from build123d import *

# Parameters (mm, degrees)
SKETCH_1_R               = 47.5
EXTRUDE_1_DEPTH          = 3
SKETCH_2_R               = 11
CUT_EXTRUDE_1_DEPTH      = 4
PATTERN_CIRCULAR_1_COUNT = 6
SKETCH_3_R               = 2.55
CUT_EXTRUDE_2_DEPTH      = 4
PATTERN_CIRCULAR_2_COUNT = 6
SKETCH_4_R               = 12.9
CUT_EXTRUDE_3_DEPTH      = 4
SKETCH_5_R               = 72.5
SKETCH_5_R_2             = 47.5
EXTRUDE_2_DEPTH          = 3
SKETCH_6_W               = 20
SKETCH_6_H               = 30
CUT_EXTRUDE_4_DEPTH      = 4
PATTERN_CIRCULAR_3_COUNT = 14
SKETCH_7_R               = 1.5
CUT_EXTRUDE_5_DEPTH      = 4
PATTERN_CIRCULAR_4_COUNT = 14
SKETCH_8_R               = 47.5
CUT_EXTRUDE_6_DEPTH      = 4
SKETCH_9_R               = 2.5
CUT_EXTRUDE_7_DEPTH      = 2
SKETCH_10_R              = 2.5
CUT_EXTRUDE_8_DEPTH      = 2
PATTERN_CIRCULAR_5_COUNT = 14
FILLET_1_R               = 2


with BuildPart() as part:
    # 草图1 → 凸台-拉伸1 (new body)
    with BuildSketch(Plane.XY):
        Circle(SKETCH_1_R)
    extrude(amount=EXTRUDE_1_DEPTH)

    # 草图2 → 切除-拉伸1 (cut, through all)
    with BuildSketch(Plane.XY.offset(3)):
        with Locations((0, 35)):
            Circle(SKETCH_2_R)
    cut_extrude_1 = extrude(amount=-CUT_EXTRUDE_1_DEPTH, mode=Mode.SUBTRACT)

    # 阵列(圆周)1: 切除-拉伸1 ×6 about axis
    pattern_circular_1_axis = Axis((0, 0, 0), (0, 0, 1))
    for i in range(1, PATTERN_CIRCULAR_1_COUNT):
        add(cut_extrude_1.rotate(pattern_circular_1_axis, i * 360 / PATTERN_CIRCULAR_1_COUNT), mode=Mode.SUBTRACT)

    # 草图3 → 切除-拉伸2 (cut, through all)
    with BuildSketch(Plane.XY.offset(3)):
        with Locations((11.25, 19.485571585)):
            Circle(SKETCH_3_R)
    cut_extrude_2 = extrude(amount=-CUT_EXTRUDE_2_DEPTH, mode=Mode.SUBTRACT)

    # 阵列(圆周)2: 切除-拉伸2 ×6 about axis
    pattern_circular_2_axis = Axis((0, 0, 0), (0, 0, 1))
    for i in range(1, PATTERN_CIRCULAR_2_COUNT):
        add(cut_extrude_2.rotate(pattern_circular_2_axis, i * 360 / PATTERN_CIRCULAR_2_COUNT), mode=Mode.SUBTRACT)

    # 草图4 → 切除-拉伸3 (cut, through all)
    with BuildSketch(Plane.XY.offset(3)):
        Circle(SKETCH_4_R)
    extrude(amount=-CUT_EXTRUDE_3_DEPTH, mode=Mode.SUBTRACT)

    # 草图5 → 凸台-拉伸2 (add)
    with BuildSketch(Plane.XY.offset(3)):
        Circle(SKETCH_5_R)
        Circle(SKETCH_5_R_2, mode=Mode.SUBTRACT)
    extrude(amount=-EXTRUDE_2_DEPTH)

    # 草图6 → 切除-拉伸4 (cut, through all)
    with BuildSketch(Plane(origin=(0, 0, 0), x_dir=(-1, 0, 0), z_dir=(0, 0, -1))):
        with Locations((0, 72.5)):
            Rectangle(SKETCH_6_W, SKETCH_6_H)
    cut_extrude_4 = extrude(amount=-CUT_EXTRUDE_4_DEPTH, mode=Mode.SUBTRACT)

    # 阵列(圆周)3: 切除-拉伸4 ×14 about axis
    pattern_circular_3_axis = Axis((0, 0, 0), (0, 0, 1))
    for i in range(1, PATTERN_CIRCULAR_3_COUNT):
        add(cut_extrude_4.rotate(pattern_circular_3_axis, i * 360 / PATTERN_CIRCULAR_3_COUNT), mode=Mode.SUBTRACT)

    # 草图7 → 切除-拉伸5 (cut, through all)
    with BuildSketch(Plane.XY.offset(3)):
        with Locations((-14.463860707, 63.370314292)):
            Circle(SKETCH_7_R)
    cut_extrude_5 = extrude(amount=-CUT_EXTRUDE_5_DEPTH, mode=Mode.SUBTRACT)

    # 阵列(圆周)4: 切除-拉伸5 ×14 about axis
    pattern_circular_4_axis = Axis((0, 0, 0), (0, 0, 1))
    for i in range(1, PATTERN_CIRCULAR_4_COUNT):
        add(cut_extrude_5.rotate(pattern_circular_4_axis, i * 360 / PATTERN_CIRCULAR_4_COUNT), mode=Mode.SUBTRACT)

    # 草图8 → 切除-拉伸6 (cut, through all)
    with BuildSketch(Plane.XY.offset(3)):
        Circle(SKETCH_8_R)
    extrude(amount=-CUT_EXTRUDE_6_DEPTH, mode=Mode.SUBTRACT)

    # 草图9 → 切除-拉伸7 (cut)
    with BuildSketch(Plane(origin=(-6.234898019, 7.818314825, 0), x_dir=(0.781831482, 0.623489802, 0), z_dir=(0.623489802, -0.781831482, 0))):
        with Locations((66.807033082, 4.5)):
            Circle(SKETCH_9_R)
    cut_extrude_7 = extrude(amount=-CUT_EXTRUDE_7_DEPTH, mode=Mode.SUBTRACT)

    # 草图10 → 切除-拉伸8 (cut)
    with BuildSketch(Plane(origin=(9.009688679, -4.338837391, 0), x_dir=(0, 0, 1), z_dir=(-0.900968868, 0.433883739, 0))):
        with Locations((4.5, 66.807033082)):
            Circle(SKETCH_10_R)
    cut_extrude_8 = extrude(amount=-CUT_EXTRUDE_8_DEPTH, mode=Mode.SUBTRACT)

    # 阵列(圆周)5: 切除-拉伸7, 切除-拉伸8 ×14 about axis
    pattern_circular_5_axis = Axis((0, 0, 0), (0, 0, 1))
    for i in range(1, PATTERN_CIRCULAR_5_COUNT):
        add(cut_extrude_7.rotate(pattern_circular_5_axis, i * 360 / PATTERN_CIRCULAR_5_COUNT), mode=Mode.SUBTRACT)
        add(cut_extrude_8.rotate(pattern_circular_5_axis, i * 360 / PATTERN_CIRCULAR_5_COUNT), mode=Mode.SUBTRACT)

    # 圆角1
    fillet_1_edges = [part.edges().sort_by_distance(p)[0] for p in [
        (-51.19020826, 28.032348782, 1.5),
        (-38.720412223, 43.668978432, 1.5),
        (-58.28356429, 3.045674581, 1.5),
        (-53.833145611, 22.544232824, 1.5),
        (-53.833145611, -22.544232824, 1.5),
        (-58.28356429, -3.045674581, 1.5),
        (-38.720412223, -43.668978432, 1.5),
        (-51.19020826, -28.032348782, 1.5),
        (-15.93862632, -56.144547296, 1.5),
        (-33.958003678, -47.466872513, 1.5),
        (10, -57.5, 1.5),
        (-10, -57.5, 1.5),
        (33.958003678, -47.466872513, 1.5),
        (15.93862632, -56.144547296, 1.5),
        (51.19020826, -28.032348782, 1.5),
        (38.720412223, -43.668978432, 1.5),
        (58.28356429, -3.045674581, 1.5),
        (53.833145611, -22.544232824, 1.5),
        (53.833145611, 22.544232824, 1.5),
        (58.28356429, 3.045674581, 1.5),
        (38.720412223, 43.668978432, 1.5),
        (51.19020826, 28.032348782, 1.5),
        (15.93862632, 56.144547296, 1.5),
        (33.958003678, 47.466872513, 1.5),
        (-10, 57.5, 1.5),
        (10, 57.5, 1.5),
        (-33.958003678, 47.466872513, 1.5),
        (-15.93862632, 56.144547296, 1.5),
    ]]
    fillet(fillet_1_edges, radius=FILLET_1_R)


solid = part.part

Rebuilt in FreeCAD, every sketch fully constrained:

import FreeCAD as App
import Part
import Sketcher
Q = App.Units.Quantity


def edges_at(feature, points):
    """Names of the edges that pass closest to the given points."""
    edges = feature.Shape.Edges
    near = lambda p: min(range(len(edges)), key=lambda i: edges[i].distToShape(Part.Vertex(*p))[0])
    return sorted({f"Edge{near(p) + 1}" for p in points})

doc = App.newDocument("Part")
body = doc.addObject("PartDesign::Body", "Body")

sketch1 = body.newObject("Sketcher::SketchObject", "Sketch")
sketch1.AttachmentSupport = (doc.getObject("XY_Plane"), [""])
sketch1.MapMode = "FlatFace"
sketch1.addGeometry(Part.Circle(App.Vector(0, 0, 0), App.Vector(0, 0, 1), 48), False)
sketch1.addConstraint(Sketcher.Constraint("Coincident", 0, 3, -1, 1))
sketch1.addConstraint(Sketcher.Constraint("Diameter", 0, Q("95 mm")))
pad1 = body.newObject("PartDesign::Pad", "Pad")
pad1.Profile = sketch1
pad1.Length = 3

sketch2 = body.newObject("Sketcher::SketchObject", "Sketch001")
sketch2.AttachmentSupport = (doc.getObject("XY_Plane"), [""])
sketch2.MapMode = "FlatFace"
sketch2.AttachmentOffset = App.Placement(App.Vector(0, 0, 3), App.Rotation())
sketch2.addGeometry(Part.Circle(App.Vector(0, 35, 0), App.Vector(0, 0, 1), 11), False)
sketch2.addConstraint(Sketcher.Constraint("PointOnObject", 0, 3, -2))
sketch2.addConstraint(Sketcher.Constraint("Diameter", 0, Q("22 mm")))
sketch2.addConstraint(Sketcher.Constraint("DistanceY", -1, 1, 0, 3, Q("35 mm")))
pocket1 = body.newObject("PartDesign::Pocket", "Pocket")
pocket1.Profile = sketch2
pocket1.Type = "ThroughAll"
doc.recompute()

polarpattern = body.newObject("PartDesign::PolarPattern", "PolarPattern")
polarpattern.Originals = [pocket1]
polarpattern.Axis = (doc.getObject("Z_Axis"), [""])
polarpattern.Angle = 360
polarpattern.Occurrences = 6
body.Tip = polarpattern

sketch3 = body.newObject("Sketcher::SketchObject", "Sketch002")
sketch3.AttachmentSupport = (doc.getObject("XY_Plane"), [""])
sketch3.MapMode = "FlatFace"
sketch3.AttachmentOffset = App.Placement(App.Vector(0, 0, 3), App.Rotation())
sketch3.addGeometry(Part.Circle(App.Vector(11.2, 19.5, 0), App.Vector(0, 0, 1), 2.5), False)
sketch3.addConstraint(Sketcher.Constraint("Diameter", 0, Q("5.1 mm")))
sketch3.addConstraint(Sketcher.Constraint("DistanceX", -1, 1, 0, 3, Q("11.25 mm")))
sketch3.addConstraint(Sketcher.Constraint("DistanceY", -1, 1, 0, 3, Q("19.485572 mm")))
pocket2 = body.newObject("PartDesign::Pocket", "Pocket001")
pocket2.Profile = sketch3
pocket2.Type = "ThroughAll"
doc.recompute()

polarpattern2 = body.newObject("PartDesign::PolarPattern", "PolarPattern001")
polarpattern2.Originals = [pocket2]
polarpattern2.Axis = (doc.getObject("Z_Axis"), [""])
polarpattern2.Angle = 360
polarpattern2.Occurrences = 6
body.Tip = polarpattern2

sketch4 = body.newObject("Sketcher::SketchObject", "Sketch003")
sketch4.AttachmentSupport = (doc.getObject("XY_Plane"), [""])
sketch4.MapMode = "FlatFace"
sketch4.AttachmentOffset = App.Placement(App.Vector(0, 0, 3), App.Rotation())
sketch4.addGeometry(Part.Circle(App.Vector(0, 0, 0), App.Vector(0, 0, 1), 13), False)
sketch4.addConstraint(Sketcher.Constraint("Coincident", 0, 3, -1, 1))
sketch4.addConstraint(Sketcher.Constraint("Diameter", 0, Q("25.8 mm")))
pocket3 = body.newObject("PartDesign::Pocket", "Pocket002")
pocket3.Profile = sketch4
pocket3.Type = "ThroughAll"

sketch5 = body.newObject("Sketcher::SketchObject", "Sketch004")
sketch5.AttachmentSupport = (doc.getObject("XY_Plane"), [""])
sketch5.MapMode = "FlatFace"
sketch5.AttachmentOffset = App.Placement(App.Vector(0, 0, 3), App.Rotation())
sketch5.addGeometry(Part.Circle(App.Vector(0, 0, 0), App.Vector(0, 0, 1), 72), False)
sketch5.addGeometry(Part.Circle(App.Vector(0, 0, 0), App.Vector(0, 0, 1), 48), False)
sketch5.addConstraint(Sketcher.Constraint("Coincident", 0, 3, -1, 1))
sketch5.addConstraint(Sketcher.Constraint("Coincident", 1, 3, -1, 1))
sketch5.addConstraint(Sketcher.Constraint("Diameter", 0, Q("145 mm")))
sketch5.addConstraint(Sketcher.Constraint("Diameter", 1, Q("95 mm")))
pad2 = body.newObject("PartDesign::Pad", "Pad001")
pad2.Profile = sketch5
pad2.Length = 3
pad2.Reversed = True

sketch6 = body.newObject("Sketcher::SketchObject", "Sketch005")
sketch6.AttachmentSupport = (doc.getObject("XY_Plane"), [""])
sketch6.MapMode = "FlatFace"
sketch6.addGeometry(Part.LineSegment(App.Vector(10, 88, 0), App.Vector(10, 58, 0)), False)
sketch6.addGeometry(Part.LineSegment(App.Vector(10, 58, 0), App.Vector(-10, 58, 0)), False)
sketch6.addGeometry(Part.LineSegment(App.Vector(-10, 58, 0), App.Vector(-10, 88, 0)), False)
sketch6.addGeometry(Part.LineSegment(App.Vector(-10, 88, 0), App.Vector(10, 88, 0)), False)
sketch6.addConstraint(Sketcher.Constraint("Coincident", 0, 2, 1, 1))
sketch6.addConstraint(Sketcher.Constraint("Coincident", 1, 2, 2, 1))
sketch6.addConstraint(Sketcher.Constraint("Coincident", 2, 2, 3, 1))
sketch6.addConstraint(Sketcher.Constraint("Coincident", 3, 2, 0, 1))
sketch6.addConstraint(Sketcher.Constraint("Vertical", 0))
sketch6.addConstraint(Sketcher.Constraint("Horizontal", 1))
sketch6.addConstraint(Sketcher.Constraint("Vertical", 2))
sketch6.addConstraint(Sketcher.Constraint("Horizontal", 3))
sketch6.addConstraint(Sketcher.Constraint("DistanceX", 1, 2, 1, 1, Q("20 mm")))
sketch6.addConstraint(Sketcher.Constraint("DistanceY", 0, 2, 0, 1, Q("30 mm")))
sketch6.addConstraint(Sketcher.Constraint("DistanceX", -1, 1, 0, 2, Q("10 mm")))
sketch6.addConstraint(Sketcher.Constraint("DistanceY", -1, 1, 0, 2, Q("57.5 mm")))
pocket4 = body.newObject("PartDesign::Pocket", "Pocket003")
pocket4.Profile = sketch6
pocket4.Type = "ThroughAll"
pocket4.Reversed = True
doc.recompute()

polarpattern3 = body.newObject("PartDesign::PolarPattern", "PolarPattern002")
polarpattern3.Originals = [pocket4]
polarpattern3.Axis = (doc.getObject("Z_Axis"), [""])
polarpattern3.Angle = 360
polarpattern3.Occurrences = 14
body.Tip = polarpattern3

sketch7 = body.newObject("Sketcher::SketchObject", "Sketch006")
sketch7.AttachmentSupport = (doc.getObject("XY_Plane"), [""])
sketch7.MapMode = "FlatFace"
sketch7.AttachmentOffset = App.Placement(App.Vector(0, 0, 3), App.Rotation())
sketch7.addGeometry(Part.Circle(App.Vector(-14.5, 63.4, 0), App.Vector(0, 0, 1), 1.5), False)
sketch7.addConstraint(Sketcher.Constraint("Diameter", 0, Q("3 mm")))
sketch7.addConstraint(Sketcher.Constraint("DistanceX", 0, 3, -1, 1, Q("14.463861 mm")))
sketch7.addConstraint(Sketcher.Constraint("DistanceY", -1, 1, 0, 3, Q("63.370314 mm")))
pocket5 = body.newObject("PartDesign::Pocket", "Pocket004")
pocket5.Profile = sketch7
pocket5.Type = "ThroughAll"
doc.recompute()

polarpattern4 = body.newObject("PartDesign::PolarPattern", "PolarPattern003")
polarpattern4.Originals = [pocket5]
polarpattern4.Axis = (doc.getObject("Z_Axis"), [""])
polarpattern4.Angle = 360
polarpattern4.Occurrences = 14
body.Tip = polarpattern4

sketch8 = body.newObject("Sketcher::SketchObject", "Sketch007")
sketch8.AttachmentSupport = (doc.getObject("XY_Plane"), [""])
sketch8.MapMode = "FlatFace"
sketch8.AttachmentOffset = App.Placement(App.Vector(0, 0, 3), App.Rotation())
sketch8.addGeometry(Part.Circle(App.Vector(0, 0, 0), App.Vector(0, 0, 1), 48), False)
sketch8.addConstraint(Sketcher.Constraint("Coincident", 0, 3, -1, 1))
sketch8.addConstraint(Sketcher.Constraint("Diameter", 0, Q("95 mm")))
pocket6 = body.newObject("PartDesign::Pocket", "Pocket005")
pocket6.Profile = sketch8
pocket6.Type = "ThroughAll"

sketch9 = body.newObject("Sketcher::SketchObject", "Sketch008")
sketch9.Placement = App.Placement(App.Vector(-6.234898, 7.818315, 0), App.Rotation(App.Vector(0.781831482, 0.623489802, 0), App.Vector(0, 0, 0.999999999), App.Vector(0.623489802, -0.781831482, 0), "ZXY"))
sketch9.addGeometry(Part.Circle(App.Vector(66.8, 4.5, 0), App.Vector(0, 0, 1), 2.5), False)
sketch9.addConstraint(Sketcher.Constraint("Diameter", 0, Q("5 mm")))
sketch9.addConstraint(Sketcher.Constraint("DistanceY", -1, 1, 0, 3, Q("4.5 mm")))
sketch9.addConstraint(Sketcher.Constraint("DistanceX", -1, 1, 0, 3, Q("66.807033 mm")))
pocket7 = body.newObject("PartDesign::Pocket", "Pocket006")
pocket7.Profile = sketch9
pocket7.Length = 2

sketch10 = body.newObject("Sketcher::SketchObject", "Sketch009")
sketch10.Placement = App.Placement(App.Vector(9.009689, -4.338837, 0), App.Rotation(App.Vector(0, 0, 1), App.Vector(0.433883739, 0.900968868, 0), App.Vector(-0.900968868, 0.433883739, 0), "ZXY"))
sketch10.addGeometry(Part.Circle(App.Vector(4.5, 66.8, 0), App.Vector(0, 0, 1), 2.5), False)
sketch10.addConstraint(Sketcher.Constraint("Diameter", 0, Q("5 mm")))
sketch10.addConstraint(Sketcher.Constraint("DistanceX", -1, 1, 0, 3, Q("4.5 mm")))
sketch10.addConstraint(Sketcher.Constraint("DistanceY", -1, 1, 0, 3, Q("66.807033 mm")))
pocket8 = body.newObject("PartDesign::Pocket", "Pocket007")
pocket8.Profile = sketch10
pocket8.Length = 2
doc.recompute()

polarpattern5 = body.newObject("PartDesign::PolarPattern", "PolarPattern004")
polarpattern5.Originals = [pocket7, pocket8]
polarpattern5.Axis = (doc.getObject("Z_Axis"), [""])
polarpattern5.Angle = 360
polarpattern5.Occurrences = 14
body.Tip = polarpattern5
doc.recompute()

fillet = body.newObject("PartDesign::Fillet", "Fillet")
fillet.Base = (polarpattern5, edges_at(polarpattern5, [
    (-51.19, 28.032, 1.5),
    (-38.72, 43.669, 1.5),
    (-58.284, 3.046, 1.5),
    (-53.833, 22.544, 1.5),
    (-53.833, -22.544, 1.5),
    (-58.284, -3.046, 1.5),
    (-38.72, -43.669, 1.5),
    (-51.19, -28.032, 1.5),
    (-15.939, -56.145, 1.5),
    (-33.958, -47.467, 1.5),
    (10, -57.5, 1.5),
    (-10, -57.5, 1.5),
    (33.958, -47.467, 1.5),
    (15.939, -56.145, 1.5),
    (51.19, -28.032, 1.5),
    (38.72, -43.669, 1.5),
    (58.284, -3.046, 1.5),
    (53.833, -22.544, 1.5),
    (53.833, 22.544, 1.5),
    (58.284, 3.046, 1.5),
    (38.72, 43.669, 1.5),
    (51.19, 28.032, 1.5),
    (15.939, 56.145, 1.5),
    (33.958, 47.467, 1.5),
    (-10, 57.5, 1.5),
    (10, 57.5, 1.5),
    (-33.958, 47.467, 1.5),
    (-15.939, 56.145, 1.5),
]))
fillet.Radius = 2

doc.recompute()
